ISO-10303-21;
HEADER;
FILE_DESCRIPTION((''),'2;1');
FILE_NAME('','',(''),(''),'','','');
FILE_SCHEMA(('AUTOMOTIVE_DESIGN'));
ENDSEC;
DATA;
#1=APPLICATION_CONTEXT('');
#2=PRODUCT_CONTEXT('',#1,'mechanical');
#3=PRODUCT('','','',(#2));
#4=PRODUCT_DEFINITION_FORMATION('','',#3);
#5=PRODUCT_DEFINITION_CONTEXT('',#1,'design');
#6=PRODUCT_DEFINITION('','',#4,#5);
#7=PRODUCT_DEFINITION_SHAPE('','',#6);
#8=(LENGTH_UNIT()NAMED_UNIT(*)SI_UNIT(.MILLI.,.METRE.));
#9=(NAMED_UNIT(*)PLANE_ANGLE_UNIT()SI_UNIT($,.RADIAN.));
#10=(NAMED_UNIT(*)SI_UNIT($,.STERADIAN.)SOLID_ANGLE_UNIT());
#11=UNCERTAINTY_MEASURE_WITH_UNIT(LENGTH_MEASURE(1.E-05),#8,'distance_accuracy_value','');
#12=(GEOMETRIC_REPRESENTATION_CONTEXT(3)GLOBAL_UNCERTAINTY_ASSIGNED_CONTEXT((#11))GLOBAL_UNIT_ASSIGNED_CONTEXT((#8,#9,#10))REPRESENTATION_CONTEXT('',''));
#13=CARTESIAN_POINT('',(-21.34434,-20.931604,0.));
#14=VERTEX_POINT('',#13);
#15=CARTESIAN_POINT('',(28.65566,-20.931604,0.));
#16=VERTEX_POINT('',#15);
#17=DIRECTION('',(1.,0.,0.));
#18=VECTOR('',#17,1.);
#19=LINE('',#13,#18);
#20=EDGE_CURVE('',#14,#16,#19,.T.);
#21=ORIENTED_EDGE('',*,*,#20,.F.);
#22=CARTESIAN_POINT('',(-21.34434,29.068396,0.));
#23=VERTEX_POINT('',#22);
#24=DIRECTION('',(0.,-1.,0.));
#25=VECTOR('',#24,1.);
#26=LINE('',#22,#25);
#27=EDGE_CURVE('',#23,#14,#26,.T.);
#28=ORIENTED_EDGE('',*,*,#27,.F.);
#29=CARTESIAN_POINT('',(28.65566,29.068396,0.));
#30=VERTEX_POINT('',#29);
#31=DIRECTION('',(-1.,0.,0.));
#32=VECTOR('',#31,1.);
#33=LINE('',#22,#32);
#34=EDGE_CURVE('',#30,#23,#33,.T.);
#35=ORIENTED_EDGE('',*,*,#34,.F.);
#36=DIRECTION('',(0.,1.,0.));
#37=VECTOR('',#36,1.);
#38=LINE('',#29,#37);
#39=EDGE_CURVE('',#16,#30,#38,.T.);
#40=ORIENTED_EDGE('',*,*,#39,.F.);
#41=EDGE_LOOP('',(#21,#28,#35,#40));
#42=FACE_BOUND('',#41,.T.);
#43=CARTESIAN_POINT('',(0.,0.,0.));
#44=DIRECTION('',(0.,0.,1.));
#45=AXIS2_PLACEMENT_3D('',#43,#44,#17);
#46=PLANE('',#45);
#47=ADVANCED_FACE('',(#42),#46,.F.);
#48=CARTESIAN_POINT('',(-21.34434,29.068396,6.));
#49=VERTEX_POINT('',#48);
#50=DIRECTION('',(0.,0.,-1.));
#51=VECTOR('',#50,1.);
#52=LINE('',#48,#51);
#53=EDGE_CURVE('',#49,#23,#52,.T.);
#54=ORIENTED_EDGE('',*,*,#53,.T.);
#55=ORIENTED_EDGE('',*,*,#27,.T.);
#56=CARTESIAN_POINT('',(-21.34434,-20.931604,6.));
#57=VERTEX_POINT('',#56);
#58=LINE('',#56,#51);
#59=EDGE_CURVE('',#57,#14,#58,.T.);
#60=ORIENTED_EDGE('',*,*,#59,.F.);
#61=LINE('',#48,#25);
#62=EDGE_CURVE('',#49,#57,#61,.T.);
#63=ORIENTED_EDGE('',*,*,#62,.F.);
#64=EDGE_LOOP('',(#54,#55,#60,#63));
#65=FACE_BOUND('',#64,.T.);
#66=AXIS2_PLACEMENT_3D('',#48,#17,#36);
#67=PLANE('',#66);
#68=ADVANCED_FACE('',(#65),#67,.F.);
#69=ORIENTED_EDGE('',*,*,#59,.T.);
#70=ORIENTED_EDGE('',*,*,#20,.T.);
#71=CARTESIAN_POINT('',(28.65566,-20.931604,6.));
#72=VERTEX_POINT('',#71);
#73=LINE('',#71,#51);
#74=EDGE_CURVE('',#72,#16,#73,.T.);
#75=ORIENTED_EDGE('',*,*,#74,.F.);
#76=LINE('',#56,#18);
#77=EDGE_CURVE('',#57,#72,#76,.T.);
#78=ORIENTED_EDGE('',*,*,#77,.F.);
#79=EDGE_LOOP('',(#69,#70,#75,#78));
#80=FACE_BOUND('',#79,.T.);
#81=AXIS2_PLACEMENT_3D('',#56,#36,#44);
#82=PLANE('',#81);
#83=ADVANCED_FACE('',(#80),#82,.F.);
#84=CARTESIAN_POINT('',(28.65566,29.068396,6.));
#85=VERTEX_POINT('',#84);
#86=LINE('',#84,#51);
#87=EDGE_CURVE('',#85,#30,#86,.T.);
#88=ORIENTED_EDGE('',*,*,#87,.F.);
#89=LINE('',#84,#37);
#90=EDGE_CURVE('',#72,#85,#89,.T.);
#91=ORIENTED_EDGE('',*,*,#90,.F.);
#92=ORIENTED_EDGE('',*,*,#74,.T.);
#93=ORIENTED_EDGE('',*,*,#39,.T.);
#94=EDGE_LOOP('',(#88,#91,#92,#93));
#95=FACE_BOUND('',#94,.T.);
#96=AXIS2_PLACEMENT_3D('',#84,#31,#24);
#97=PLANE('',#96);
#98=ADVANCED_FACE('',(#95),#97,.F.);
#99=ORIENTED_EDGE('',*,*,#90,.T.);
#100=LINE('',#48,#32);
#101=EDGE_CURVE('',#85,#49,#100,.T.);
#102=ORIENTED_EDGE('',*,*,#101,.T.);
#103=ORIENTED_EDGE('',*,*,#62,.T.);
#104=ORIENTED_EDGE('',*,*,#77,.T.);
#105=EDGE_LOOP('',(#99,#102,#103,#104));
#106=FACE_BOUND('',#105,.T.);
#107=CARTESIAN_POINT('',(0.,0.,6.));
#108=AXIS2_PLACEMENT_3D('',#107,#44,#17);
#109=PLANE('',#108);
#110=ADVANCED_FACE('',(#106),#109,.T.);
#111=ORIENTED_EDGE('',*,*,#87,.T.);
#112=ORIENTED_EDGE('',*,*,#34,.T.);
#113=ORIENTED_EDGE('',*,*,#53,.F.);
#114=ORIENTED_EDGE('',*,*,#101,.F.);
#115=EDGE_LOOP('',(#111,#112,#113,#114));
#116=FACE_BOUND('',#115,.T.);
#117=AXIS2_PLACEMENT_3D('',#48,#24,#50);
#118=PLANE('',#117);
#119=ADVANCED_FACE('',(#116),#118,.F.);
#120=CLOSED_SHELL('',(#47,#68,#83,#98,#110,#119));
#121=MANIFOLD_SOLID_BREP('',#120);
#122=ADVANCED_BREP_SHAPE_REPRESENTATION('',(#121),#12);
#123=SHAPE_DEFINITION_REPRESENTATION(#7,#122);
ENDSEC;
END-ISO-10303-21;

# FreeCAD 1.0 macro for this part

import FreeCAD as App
import Part
import Sketcher

V = App.Vector
Q = App.Units.Quantity


def add_polygon(sketch, points):
    """Adds a closed chain of lines whose ends are joined by coincident constraints."""
    first, n = sketch.GeometryCount, len(points)
    for a, b in zip(points, points[1:] + points[:1]):
        sketch.addGeometry(Part.LineSegment(App.Vector(*a, 0), App.Vector(*b, 0)), False)
    for i in range(n):
        sketch.addConstraint(Sketcher.Constraint("Coincident", first + i, 2, first + (i + 1) % n, 1))

doc = App.newDocument("Part")
body = doc.addObject("PartDesign::Body", "Body")

# Sketch on XY plane
sketch1 = doc.addObject("Sketcher::SketchObject", "Sketch")
body.addObject(sketch1)
sketch1.AttachmentSupport = (doc.XY_Plane, [""])
sketch1.MapMode = "FlatFace"
add_polygon(sketch1, [(-21, 29), (-21, -21), (29, -21), (29, 29)])  # lines 0-3
sketch1.addConstraint([
    Sketcher.Constraint("Vertical", 0),
    Sketcher.Constraint("Horizontal", 1),
    Sketcher.Constraint("Vertical", 2),
    Sketcher.Constraint("Horizontal", 3),
    Sketcher.Constraint("Equal", 3, 0),
    Sketcher.Constraint("DistanceX", 1, 1, 1, 2, Q("50 mm")),
    Sketcher.Constraint("DistanceX", 0, 2, -1, 1, Q("21.34434 mm")),
    Sketcher.Constraint("DistanceY", 0, 2, -1, 1, Q("20.931604 mm")),
])
pad1 = doc.addObject("PartDesign::Pad", "Pad")
body.addObject(pad1)
pad1.Profile = sketch1
pad1.Length = 6

doc.recompute()
